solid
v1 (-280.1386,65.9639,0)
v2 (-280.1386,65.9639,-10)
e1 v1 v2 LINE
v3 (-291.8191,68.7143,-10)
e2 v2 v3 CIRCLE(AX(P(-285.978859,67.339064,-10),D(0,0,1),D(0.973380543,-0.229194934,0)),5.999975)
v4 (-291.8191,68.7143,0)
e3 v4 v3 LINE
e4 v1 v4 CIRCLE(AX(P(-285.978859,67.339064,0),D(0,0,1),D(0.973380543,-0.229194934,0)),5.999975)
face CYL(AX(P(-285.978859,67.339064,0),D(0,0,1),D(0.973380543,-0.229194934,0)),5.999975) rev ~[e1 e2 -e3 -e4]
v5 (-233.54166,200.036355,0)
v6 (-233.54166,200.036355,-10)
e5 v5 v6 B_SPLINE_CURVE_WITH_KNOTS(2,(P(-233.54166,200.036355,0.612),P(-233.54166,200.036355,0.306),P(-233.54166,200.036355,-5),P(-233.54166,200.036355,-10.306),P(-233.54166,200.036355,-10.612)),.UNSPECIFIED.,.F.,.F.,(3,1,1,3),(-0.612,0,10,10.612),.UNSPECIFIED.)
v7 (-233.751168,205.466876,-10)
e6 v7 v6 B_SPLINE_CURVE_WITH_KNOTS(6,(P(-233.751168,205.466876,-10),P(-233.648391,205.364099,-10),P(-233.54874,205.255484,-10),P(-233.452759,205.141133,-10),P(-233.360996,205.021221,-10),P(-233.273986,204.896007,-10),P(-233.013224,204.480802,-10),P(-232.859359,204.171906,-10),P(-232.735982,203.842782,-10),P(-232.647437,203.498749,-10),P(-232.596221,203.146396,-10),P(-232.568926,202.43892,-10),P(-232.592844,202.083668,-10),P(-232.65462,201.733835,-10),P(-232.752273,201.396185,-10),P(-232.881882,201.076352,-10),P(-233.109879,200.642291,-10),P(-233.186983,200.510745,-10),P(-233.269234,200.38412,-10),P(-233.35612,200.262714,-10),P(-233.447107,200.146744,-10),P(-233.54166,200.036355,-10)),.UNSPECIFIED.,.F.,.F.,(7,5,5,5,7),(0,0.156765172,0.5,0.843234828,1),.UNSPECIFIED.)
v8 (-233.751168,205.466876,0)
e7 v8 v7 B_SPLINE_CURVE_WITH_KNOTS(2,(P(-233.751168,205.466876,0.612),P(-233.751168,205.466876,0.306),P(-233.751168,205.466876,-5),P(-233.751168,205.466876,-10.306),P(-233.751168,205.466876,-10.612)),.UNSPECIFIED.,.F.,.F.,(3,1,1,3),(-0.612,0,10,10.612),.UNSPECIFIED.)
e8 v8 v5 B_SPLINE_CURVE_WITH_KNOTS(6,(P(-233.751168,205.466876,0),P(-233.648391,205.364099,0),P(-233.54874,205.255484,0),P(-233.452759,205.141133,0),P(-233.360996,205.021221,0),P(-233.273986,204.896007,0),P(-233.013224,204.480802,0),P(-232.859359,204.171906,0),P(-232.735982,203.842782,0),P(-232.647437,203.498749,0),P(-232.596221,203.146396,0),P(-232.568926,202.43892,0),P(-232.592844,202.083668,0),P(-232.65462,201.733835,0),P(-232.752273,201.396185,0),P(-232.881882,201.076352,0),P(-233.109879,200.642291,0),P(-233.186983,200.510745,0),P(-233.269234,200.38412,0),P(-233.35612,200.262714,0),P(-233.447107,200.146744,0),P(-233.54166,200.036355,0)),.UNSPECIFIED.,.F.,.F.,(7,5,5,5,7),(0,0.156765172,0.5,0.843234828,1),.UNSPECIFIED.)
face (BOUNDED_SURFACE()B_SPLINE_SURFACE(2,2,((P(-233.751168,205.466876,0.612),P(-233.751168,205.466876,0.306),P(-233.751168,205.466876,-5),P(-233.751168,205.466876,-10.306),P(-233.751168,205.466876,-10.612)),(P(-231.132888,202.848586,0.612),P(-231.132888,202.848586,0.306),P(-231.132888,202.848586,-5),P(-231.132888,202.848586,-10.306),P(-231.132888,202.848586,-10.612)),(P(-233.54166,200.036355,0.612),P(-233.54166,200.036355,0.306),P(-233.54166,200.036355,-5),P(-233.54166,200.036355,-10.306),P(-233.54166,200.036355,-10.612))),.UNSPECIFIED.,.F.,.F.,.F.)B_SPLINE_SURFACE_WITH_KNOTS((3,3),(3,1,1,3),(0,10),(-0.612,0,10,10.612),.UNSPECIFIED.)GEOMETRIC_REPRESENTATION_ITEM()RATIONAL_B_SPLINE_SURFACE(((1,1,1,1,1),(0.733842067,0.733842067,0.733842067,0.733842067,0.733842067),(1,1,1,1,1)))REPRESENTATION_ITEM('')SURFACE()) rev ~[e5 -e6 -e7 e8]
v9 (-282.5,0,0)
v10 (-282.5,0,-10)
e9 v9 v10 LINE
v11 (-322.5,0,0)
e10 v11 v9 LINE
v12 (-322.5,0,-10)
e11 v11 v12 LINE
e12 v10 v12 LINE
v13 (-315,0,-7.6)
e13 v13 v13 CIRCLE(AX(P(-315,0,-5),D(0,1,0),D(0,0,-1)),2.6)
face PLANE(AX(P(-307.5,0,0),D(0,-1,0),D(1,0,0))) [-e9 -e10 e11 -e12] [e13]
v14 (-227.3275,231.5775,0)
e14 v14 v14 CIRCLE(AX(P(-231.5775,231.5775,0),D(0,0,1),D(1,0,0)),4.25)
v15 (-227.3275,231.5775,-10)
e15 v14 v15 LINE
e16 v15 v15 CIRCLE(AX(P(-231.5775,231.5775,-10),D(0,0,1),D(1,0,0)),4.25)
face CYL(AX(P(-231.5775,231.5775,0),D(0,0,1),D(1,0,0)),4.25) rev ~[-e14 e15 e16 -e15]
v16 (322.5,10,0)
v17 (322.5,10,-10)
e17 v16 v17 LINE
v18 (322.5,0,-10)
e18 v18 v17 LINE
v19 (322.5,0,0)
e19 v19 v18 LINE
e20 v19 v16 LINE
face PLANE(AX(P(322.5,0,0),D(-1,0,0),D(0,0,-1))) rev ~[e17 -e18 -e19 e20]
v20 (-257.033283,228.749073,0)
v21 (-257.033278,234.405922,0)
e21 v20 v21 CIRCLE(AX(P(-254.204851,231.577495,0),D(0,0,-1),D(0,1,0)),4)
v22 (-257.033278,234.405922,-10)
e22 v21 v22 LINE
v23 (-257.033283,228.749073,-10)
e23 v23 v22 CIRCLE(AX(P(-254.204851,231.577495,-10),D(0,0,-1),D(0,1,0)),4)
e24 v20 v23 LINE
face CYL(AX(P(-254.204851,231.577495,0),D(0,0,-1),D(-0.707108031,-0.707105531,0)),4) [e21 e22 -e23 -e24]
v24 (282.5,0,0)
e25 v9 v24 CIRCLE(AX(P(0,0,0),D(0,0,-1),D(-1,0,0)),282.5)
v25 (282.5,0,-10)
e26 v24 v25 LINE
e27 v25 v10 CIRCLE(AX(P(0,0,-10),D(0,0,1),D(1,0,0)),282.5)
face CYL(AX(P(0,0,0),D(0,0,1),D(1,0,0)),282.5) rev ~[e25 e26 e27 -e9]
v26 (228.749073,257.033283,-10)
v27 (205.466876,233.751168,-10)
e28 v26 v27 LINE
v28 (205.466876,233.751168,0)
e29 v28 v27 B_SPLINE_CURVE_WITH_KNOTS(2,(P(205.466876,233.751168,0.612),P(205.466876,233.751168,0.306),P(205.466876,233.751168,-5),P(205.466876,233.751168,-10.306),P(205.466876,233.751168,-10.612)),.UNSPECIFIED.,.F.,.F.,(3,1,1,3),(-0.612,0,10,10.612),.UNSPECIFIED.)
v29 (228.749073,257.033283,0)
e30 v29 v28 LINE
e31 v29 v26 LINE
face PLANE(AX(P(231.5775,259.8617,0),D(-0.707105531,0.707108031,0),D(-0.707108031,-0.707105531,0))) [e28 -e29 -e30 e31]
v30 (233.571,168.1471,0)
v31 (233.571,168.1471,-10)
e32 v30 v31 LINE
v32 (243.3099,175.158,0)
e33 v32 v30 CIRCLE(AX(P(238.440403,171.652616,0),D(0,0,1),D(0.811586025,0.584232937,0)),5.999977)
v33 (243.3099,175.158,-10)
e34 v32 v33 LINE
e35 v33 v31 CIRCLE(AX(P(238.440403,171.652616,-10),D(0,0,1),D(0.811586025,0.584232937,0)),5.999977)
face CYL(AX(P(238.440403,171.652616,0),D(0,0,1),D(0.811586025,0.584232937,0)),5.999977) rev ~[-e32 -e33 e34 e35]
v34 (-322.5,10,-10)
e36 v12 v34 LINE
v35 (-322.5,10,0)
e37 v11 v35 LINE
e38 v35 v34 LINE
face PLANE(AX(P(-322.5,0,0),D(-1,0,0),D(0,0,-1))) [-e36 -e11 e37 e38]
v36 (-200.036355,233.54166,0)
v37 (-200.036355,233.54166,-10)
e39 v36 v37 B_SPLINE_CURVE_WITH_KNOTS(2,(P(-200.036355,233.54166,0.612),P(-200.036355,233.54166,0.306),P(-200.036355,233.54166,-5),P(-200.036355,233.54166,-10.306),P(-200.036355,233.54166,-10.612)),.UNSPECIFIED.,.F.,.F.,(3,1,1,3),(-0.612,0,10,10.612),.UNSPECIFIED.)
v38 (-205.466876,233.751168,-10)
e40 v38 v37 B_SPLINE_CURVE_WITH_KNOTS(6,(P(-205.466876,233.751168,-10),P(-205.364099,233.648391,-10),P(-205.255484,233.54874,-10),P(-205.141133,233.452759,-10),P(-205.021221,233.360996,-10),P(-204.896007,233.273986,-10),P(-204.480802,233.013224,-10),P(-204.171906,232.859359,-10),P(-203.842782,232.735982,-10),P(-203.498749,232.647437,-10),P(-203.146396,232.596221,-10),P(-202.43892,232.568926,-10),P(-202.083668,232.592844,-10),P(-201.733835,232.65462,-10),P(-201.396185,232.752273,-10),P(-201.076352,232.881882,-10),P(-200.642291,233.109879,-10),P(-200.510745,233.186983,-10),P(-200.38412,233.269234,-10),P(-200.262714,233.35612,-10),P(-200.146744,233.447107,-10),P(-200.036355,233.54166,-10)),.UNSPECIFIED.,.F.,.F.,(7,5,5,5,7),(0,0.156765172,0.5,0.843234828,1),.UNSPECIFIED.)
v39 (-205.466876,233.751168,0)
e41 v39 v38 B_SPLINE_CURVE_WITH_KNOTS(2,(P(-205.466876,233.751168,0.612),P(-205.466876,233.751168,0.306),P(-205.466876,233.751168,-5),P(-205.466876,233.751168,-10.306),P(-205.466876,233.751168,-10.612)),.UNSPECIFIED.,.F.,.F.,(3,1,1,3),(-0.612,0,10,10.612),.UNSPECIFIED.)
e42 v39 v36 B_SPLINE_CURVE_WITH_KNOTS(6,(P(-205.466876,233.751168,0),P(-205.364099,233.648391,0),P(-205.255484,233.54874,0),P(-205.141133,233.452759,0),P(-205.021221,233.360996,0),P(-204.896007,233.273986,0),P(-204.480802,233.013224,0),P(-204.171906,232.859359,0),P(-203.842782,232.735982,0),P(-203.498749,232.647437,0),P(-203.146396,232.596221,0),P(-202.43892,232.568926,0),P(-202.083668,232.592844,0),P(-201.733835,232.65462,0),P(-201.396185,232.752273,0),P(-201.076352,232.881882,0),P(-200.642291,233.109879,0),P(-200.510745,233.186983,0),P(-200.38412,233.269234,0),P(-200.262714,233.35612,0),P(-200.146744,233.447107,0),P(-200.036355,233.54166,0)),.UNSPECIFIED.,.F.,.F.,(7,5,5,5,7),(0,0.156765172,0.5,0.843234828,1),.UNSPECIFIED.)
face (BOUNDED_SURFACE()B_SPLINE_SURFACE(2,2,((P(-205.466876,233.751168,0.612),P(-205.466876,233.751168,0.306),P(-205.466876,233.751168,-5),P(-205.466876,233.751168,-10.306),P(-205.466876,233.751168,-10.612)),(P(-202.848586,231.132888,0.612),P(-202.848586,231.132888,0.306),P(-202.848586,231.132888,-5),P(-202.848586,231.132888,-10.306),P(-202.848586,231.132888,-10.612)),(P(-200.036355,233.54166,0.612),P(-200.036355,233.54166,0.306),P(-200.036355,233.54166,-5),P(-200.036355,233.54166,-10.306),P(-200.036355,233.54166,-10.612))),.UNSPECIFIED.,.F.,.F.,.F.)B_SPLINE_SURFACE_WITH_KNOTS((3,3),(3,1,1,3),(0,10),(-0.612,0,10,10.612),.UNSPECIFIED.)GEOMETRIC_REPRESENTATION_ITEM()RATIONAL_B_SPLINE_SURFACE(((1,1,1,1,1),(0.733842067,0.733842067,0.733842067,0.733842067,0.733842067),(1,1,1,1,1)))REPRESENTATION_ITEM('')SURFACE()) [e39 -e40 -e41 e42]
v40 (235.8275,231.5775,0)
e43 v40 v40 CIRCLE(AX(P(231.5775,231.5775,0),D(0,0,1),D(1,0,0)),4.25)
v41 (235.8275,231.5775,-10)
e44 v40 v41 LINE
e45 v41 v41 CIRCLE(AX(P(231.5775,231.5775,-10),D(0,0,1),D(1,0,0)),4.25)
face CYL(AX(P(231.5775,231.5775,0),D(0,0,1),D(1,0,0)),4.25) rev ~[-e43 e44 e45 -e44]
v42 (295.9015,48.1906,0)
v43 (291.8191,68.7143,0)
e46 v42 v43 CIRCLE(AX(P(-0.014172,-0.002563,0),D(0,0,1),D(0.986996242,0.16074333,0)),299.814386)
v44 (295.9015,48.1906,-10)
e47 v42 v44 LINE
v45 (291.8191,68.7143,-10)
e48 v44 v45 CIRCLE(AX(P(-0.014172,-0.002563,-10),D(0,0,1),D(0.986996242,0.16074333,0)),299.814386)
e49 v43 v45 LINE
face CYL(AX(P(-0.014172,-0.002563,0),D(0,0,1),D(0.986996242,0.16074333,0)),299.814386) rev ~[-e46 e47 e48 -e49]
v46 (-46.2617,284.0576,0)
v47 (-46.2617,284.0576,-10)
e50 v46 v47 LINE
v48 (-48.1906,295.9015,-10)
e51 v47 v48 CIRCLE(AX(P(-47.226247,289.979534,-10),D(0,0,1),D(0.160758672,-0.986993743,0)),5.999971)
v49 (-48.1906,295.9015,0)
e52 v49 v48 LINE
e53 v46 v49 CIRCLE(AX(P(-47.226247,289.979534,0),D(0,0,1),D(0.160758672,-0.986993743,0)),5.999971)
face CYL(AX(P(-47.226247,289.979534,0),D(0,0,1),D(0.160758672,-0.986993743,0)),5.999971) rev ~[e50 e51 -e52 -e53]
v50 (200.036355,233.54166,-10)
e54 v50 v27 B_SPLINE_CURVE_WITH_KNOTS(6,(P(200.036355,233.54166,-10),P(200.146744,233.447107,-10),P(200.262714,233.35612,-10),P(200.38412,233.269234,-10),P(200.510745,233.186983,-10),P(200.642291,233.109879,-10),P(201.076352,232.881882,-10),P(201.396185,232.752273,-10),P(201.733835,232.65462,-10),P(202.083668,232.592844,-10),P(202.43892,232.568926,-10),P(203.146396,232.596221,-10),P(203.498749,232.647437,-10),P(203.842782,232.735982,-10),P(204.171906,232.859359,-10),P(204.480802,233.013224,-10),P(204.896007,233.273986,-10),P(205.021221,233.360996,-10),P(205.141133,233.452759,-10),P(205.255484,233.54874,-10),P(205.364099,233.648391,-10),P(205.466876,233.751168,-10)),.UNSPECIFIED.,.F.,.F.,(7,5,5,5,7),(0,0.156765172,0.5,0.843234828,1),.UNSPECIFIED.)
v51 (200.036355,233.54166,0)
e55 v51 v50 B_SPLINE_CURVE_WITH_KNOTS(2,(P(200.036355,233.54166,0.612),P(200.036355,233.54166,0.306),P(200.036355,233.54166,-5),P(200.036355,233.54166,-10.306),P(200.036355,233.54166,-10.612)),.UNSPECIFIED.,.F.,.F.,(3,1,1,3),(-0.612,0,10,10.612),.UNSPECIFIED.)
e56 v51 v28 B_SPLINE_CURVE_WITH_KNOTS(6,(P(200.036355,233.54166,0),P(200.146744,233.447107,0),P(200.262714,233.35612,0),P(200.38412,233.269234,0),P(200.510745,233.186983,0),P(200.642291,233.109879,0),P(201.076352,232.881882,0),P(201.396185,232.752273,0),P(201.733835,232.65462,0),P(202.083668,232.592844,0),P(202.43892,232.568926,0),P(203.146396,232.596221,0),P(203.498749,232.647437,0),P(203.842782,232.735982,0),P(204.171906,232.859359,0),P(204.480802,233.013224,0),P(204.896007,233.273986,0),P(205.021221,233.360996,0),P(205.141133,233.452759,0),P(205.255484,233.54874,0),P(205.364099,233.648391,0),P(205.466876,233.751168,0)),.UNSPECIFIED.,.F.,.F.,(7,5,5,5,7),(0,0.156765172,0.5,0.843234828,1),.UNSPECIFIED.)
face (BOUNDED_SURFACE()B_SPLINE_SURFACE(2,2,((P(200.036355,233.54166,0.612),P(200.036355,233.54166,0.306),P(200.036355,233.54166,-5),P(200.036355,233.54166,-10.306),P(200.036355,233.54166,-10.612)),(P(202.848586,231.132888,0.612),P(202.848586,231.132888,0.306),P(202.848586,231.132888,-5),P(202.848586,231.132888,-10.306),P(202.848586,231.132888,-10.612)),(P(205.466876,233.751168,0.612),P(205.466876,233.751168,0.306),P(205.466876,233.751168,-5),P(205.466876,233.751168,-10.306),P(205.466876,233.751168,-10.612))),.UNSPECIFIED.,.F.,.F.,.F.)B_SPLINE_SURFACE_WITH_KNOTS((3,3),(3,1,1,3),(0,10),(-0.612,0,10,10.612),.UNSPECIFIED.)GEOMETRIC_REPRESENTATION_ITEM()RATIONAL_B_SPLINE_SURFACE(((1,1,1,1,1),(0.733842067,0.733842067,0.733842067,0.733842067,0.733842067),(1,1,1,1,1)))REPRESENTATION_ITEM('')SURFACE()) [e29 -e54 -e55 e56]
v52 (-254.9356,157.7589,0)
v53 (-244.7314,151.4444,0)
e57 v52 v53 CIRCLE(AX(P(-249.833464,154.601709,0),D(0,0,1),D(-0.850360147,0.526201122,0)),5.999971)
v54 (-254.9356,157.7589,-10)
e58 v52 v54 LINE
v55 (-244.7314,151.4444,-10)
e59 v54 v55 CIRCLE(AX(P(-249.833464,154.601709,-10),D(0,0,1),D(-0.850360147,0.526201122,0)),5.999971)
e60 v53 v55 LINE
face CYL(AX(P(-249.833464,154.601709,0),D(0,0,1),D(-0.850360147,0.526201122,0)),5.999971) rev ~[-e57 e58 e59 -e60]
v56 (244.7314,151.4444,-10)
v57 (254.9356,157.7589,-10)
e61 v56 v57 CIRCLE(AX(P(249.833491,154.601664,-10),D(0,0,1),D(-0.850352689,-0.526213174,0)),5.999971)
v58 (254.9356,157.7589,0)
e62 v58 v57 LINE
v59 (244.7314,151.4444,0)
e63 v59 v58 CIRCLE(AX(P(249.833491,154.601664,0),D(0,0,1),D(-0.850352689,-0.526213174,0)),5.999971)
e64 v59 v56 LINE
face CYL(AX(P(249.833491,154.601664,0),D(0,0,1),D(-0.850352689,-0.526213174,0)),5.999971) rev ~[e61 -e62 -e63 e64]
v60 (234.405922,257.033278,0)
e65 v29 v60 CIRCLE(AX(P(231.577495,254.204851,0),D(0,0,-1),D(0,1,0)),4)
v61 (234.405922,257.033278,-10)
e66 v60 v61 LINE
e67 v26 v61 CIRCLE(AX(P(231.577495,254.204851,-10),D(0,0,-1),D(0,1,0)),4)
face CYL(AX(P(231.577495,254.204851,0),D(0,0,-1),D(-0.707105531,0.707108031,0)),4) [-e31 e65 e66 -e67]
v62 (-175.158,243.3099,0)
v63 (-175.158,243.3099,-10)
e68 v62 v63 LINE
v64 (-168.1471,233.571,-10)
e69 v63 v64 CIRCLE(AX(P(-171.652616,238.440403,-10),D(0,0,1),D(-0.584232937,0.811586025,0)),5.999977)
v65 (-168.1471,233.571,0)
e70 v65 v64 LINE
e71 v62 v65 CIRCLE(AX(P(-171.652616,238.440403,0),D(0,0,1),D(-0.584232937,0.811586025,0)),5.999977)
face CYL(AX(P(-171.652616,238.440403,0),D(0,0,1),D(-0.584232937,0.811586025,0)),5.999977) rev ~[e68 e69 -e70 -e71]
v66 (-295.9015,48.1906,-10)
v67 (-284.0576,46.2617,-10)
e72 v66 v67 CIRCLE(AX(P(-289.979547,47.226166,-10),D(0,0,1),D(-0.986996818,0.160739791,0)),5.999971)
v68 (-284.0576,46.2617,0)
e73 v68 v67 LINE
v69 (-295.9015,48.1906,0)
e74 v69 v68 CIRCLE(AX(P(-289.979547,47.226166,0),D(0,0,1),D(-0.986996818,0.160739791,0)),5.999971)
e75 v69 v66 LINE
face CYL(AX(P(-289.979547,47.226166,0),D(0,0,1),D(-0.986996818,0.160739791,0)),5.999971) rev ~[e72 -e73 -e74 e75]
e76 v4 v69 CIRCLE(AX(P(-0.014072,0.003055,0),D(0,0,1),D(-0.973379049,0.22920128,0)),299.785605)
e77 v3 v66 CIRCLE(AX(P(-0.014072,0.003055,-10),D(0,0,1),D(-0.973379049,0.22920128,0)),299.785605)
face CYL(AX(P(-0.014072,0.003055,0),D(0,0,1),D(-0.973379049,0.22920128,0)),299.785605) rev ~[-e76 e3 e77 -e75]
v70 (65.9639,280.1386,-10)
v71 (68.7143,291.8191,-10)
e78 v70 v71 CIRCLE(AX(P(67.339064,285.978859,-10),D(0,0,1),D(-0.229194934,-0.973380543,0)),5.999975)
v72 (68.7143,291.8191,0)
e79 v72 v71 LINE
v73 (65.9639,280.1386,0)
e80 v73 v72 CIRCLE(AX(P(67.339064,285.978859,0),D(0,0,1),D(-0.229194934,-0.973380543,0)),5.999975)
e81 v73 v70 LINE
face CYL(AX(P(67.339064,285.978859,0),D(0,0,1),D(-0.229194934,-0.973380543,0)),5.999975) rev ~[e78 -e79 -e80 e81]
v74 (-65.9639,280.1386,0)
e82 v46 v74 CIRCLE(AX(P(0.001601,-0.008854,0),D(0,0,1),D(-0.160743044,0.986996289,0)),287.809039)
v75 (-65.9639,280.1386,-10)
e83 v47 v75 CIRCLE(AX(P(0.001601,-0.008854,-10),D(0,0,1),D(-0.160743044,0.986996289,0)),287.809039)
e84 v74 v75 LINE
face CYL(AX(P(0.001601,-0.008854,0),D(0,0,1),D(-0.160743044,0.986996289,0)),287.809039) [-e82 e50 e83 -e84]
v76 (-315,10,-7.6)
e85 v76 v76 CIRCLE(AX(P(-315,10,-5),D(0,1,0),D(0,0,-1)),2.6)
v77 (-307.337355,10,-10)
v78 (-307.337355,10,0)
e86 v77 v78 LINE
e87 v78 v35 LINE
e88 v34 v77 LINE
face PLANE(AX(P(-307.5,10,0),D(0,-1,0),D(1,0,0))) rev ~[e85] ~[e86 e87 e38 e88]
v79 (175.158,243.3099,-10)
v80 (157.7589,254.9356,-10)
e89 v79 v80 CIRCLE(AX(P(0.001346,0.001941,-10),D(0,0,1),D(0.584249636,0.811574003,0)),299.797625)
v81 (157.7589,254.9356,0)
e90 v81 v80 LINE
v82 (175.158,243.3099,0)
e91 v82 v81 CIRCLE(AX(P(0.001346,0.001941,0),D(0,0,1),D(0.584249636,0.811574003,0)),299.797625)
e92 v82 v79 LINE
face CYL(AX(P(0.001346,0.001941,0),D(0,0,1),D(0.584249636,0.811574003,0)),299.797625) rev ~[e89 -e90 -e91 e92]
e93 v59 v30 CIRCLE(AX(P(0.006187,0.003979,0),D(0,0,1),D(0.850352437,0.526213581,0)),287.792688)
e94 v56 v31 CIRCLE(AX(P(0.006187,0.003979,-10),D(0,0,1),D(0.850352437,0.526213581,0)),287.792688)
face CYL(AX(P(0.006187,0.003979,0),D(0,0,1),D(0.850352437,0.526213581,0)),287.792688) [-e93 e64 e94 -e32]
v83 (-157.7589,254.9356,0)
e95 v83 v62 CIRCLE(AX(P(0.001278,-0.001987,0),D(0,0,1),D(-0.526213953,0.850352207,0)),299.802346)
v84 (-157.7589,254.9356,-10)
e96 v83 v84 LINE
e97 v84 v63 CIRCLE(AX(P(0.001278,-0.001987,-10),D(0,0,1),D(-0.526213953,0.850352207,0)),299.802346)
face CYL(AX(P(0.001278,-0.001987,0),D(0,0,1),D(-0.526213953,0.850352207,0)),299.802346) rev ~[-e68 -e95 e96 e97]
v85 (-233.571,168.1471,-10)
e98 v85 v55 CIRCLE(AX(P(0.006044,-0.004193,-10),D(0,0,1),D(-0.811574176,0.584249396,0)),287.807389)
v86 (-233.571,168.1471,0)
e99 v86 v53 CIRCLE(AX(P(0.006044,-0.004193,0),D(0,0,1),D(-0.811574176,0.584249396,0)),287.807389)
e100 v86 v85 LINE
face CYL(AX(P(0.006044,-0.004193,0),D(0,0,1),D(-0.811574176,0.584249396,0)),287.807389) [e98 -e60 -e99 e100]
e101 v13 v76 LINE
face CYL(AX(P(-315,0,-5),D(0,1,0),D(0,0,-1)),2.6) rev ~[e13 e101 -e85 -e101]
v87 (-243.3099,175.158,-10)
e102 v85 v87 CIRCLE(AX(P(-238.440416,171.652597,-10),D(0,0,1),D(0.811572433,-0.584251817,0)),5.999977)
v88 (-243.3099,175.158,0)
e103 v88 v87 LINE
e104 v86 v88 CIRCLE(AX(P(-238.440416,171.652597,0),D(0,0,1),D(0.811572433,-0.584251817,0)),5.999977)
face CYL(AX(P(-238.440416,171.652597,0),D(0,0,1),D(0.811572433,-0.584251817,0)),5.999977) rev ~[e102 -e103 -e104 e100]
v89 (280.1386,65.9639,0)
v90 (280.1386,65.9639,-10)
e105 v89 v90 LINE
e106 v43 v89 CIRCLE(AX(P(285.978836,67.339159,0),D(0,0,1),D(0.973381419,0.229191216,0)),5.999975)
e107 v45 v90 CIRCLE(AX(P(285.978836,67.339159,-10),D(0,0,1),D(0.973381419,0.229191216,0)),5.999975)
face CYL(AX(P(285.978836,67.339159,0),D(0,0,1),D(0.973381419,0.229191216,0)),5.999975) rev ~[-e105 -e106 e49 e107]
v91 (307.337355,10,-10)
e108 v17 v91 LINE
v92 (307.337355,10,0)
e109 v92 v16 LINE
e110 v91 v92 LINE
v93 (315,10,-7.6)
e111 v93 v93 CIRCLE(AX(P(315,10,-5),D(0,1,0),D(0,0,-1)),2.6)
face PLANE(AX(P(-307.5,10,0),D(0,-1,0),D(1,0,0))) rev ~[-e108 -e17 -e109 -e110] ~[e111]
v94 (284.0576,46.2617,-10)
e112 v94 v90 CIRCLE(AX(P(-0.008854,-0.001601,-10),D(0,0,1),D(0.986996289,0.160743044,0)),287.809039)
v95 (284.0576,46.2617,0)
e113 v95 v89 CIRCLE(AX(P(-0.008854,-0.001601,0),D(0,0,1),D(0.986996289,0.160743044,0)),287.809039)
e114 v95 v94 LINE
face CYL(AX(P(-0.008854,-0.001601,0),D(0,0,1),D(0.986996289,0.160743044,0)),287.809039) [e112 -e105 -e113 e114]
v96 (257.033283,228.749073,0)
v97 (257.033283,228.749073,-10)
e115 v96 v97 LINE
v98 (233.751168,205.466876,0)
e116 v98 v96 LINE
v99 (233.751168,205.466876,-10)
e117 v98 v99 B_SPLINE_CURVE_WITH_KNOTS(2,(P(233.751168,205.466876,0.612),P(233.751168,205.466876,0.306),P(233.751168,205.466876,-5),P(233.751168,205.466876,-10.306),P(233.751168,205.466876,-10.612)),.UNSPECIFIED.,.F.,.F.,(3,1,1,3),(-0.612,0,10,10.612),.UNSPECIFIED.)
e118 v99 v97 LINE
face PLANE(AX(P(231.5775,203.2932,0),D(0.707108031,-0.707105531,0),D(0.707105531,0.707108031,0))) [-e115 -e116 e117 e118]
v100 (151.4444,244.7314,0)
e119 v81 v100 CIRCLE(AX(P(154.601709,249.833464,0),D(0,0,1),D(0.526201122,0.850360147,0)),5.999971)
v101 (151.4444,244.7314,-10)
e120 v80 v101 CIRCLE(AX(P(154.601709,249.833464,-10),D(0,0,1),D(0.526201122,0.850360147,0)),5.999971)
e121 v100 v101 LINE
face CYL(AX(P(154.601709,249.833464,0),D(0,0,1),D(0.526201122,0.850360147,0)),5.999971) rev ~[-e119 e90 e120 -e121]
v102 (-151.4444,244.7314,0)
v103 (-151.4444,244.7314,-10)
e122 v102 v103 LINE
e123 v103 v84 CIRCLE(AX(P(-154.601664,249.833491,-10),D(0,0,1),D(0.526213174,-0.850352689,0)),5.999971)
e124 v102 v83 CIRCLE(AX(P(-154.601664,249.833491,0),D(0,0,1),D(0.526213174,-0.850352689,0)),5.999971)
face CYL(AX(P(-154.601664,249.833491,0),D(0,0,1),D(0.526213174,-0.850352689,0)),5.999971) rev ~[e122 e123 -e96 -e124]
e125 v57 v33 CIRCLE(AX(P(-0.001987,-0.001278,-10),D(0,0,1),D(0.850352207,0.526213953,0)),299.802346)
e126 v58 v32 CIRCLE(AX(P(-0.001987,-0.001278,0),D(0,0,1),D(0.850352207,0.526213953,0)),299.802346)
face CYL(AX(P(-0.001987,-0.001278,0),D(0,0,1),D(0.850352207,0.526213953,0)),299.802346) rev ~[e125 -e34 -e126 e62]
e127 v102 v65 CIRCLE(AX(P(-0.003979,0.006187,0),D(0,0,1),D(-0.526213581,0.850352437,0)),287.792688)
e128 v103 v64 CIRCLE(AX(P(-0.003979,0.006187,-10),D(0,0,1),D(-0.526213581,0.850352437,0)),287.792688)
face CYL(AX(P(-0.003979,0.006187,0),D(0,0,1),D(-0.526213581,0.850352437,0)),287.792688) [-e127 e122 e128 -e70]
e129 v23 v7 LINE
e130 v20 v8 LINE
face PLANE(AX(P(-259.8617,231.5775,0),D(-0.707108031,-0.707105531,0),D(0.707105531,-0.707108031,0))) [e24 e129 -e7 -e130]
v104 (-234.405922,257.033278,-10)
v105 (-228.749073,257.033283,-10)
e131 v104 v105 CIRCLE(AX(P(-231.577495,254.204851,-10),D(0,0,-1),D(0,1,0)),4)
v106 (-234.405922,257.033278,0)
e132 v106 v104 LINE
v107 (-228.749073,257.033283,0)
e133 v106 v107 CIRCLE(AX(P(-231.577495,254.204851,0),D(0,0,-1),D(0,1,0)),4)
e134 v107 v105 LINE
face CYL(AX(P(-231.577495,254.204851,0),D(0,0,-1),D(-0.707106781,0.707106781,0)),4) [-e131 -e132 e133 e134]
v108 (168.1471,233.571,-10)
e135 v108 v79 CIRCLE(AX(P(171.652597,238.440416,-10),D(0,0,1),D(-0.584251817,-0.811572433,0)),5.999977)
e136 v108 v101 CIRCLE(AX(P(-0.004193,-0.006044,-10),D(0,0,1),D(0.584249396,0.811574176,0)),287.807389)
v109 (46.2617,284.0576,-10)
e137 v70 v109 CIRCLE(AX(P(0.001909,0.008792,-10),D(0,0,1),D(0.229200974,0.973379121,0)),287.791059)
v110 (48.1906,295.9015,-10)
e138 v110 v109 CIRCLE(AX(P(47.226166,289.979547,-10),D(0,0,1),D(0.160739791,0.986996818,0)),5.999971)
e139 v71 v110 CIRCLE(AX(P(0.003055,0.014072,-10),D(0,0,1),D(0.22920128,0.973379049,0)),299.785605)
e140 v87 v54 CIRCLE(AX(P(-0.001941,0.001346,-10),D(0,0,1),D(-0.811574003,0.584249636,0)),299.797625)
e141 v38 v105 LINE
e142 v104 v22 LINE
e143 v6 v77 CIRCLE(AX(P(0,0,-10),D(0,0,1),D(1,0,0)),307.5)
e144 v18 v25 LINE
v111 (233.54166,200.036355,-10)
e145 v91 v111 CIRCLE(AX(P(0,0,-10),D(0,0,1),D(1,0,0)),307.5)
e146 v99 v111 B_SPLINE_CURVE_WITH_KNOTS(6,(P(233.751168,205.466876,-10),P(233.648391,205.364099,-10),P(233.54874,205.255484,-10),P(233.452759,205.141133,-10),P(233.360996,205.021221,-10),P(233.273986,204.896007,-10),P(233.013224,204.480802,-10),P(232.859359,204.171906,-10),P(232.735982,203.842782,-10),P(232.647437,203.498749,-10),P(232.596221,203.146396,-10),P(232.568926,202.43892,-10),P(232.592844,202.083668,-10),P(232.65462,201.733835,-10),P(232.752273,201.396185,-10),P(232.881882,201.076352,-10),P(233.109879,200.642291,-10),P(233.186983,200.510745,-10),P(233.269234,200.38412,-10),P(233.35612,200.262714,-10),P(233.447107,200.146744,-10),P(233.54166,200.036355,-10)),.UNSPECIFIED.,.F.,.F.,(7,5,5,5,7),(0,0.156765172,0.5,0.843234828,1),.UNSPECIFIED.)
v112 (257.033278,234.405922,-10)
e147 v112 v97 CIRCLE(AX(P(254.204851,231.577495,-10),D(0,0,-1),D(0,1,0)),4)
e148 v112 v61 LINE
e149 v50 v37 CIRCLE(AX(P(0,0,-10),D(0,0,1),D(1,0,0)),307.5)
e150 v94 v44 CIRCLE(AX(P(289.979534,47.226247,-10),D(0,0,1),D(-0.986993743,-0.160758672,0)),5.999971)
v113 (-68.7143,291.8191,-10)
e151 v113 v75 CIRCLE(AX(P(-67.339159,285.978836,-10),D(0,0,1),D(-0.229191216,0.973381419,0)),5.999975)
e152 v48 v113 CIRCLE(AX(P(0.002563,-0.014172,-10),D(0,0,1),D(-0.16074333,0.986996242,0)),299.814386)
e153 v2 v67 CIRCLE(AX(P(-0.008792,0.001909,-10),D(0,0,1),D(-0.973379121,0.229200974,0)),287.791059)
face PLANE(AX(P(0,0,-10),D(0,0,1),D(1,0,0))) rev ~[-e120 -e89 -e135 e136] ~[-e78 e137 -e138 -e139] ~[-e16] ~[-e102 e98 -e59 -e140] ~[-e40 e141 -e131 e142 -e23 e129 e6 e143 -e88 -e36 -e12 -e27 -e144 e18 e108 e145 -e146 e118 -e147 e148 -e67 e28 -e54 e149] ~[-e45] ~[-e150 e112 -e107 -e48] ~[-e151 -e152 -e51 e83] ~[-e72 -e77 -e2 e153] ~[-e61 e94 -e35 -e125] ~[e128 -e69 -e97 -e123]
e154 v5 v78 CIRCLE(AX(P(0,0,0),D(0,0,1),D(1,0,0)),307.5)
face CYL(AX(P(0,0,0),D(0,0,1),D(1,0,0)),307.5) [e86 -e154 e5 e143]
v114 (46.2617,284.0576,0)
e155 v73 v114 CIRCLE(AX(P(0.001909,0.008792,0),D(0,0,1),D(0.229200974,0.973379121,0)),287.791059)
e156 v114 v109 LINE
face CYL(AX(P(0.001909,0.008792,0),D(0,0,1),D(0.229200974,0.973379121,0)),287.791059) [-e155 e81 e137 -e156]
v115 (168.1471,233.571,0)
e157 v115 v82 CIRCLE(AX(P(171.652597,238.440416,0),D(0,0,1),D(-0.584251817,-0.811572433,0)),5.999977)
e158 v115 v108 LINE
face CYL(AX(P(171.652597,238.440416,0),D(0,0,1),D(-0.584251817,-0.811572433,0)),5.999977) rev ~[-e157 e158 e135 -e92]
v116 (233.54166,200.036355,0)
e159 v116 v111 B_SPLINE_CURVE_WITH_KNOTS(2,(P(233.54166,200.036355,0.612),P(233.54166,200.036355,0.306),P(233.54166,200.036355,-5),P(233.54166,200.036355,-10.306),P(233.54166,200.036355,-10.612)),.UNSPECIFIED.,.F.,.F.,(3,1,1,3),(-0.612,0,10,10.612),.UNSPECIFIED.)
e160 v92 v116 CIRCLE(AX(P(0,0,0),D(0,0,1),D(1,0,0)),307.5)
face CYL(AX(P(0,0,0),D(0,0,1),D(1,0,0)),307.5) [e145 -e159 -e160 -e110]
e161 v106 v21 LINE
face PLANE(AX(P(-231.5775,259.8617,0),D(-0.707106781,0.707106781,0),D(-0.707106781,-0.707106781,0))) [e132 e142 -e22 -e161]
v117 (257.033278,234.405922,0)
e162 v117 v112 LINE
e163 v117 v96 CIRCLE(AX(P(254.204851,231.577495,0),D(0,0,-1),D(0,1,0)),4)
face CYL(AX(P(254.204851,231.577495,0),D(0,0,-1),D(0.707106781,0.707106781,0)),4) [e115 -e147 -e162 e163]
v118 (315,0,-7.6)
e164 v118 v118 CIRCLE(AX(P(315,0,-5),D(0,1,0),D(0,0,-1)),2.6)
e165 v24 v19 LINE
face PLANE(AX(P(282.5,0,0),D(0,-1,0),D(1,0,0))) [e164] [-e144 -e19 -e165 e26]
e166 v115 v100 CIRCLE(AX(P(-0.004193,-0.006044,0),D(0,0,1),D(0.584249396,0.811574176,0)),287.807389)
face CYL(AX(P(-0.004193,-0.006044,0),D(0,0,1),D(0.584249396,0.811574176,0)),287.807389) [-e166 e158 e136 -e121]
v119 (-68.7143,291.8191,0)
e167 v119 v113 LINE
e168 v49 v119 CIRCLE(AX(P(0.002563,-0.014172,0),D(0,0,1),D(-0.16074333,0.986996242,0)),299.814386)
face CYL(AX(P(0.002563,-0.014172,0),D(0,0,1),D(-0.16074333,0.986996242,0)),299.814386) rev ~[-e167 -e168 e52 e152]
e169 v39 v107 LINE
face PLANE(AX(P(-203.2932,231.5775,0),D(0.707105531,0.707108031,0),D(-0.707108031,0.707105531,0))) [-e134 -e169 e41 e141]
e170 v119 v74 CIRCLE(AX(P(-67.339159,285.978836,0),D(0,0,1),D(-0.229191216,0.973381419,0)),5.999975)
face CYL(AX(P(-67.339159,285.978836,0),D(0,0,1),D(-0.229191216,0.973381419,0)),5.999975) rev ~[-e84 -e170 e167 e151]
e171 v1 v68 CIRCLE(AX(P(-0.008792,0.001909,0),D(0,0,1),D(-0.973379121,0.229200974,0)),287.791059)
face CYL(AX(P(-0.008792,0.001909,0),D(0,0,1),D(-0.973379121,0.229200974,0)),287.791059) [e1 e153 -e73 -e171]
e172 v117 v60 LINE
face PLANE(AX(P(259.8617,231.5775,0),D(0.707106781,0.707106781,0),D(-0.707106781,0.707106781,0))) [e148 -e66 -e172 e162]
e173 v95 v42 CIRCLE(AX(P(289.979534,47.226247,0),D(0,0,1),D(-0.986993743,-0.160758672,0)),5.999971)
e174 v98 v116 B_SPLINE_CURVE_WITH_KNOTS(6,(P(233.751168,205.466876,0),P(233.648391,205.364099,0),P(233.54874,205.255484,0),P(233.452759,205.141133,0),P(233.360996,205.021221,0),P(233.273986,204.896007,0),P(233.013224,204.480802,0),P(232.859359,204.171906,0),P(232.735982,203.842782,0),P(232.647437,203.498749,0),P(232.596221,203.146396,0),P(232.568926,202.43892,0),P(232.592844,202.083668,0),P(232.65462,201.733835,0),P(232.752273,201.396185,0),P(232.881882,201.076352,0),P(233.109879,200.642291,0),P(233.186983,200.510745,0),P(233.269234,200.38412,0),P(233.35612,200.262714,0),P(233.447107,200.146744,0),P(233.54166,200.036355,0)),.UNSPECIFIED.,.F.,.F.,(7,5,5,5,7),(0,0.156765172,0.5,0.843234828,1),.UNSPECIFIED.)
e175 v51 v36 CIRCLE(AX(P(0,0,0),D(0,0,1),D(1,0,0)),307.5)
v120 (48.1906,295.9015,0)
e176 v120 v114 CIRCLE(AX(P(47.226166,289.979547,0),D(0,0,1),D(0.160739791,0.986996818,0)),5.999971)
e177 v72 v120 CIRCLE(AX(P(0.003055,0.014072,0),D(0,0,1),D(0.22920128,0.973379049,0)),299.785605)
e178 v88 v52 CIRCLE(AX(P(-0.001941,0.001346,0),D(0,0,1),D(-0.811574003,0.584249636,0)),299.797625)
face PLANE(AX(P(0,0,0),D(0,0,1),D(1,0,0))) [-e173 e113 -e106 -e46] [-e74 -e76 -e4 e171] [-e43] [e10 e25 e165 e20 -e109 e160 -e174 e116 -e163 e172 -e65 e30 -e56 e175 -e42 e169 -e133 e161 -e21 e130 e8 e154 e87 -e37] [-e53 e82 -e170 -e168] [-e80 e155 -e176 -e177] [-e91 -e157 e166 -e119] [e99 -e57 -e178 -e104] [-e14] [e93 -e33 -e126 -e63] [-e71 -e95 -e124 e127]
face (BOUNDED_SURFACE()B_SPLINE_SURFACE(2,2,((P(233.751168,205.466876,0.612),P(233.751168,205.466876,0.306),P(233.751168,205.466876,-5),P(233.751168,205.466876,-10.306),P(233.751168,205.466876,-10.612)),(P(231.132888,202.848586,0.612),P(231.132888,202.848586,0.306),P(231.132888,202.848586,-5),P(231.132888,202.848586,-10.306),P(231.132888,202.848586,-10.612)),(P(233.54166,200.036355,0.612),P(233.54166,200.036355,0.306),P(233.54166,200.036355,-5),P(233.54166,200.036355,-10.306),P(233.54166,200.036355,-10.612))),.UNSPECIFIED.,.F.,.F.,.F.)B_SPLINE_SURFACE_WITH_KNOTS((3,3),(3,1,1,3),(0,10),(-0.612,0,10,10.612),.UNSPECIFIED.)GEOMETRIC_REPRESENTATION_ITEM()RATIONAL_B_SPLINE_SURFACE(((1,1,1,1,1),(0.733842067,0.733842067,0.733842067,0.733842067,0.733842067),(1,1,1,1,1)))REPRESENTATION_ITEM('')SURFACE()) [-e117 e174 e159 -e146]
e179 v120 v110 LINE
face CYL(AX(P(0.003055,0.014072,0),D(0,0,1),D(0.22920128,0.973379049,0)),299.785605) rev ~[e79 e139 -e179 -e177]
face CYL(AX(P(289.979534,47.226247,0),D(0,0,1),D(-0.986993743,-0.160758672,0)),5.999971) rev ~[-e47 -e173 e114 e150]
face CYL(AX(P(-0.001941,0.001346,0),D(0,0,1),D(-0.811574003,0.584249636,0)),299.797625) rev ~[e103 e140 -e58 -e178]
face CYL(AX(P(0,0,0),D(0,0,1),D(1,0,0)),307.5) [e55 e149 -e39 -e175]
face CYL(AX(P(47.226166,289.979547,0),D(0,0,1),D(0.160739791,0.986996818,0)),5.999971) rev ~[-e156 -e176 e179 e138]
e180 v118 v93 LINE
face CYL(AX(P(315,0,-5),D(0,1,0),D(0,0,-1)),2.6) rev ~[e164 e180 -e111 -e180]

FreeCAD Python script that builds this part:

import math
import FreeCAD as App
import Part
import Sketcher
from FreeCAD import Vector


def edges_at(feature, points):
    """Names of the edges that pass closest to the given points."""
    edges = feature.Shape.Edges
    near = lambda p: min(range(len(edges)), key=lambda i: edges[i].distToShape(Part.Vertex(*p))[0])
    return sorted({f"Edge{near(p) + 1}" for p in points})

doc = App.newDocument("Part")
params = doc.addObject("Spreadsheet::Sheet", "Params")
for row, (alias, value) in enumerate([
    ("sketch1_radius", "6 mm"),
    ("sketch1_diameter", "8.5 mm"),
    ("sketch1_radius2", "307.5 mm"),
    ("sketch1_radius3", "282.5 mm"),
    ("sketch1_length", "40 mm"),
    ("pad1_length", "10 mm"),
    ("sketch2_width", "40 mm"),
    ("sketch2_height", "10 mm"),
    ("pad2_length", "10 mm"),
    ("fillet_radius", "4 mm"),
    ("sketch3_diameter", "5.2 mm"),
    ("hole_diameter", "5.2 mm"),
], start=1):
    params.set(f"A{row}", alias)
    params.set(f"B{row}", "=" + value)
    params.setAlias(f"B{row}", alias)

body = doc.addObject("PartDesign::Body", "Body")

# Sketch on XY plane
sketch1 = body.newObject("Sketcher::SketchObject", "Sketch")
sketch1.AttachmentSupport = (doc.getObject("XY_Plane"), [""])
sketch1.MapMode = "FlatFace"
sketch1.addGeometry([
    Part.LineSegment(Vector(-259.8617, 231.5775, 0), Vector(-231.5775, 203.2932, 0)),  # 0
    Part.LineSegment(Vector(-231.5775, 203.2932, 0), Vector(-231.11709, 202.83279, 0)),  # 1
    Part.ArcOfCircle(Part.Circle(Vector(0, 0, 0), Vector(0, 0, 1), 307.5), math.radians(138.729191), math.radians(180)),  # 2
    Part.LineSegment(Vector(-307.5, 0, 0), Vector(-282.5, 0, 0)),  # 3
    Part.ArcOfCircle(Part.Circle(Vector(0, 0, 0), Vector(0, 0, 1), 282.5), math.radians(0), math.radians(180)),  # 4
    Part.LineSegment(Vector(282.5, 0, 0), Vector(307.5, 0, 0)),  # 5
    Part.ArcOfCircle(Part.Circle(Vector(0, 0, 0), Vector(0, 0, 1), 307.5), math.radians(0), math.radians(41.270809)),  # 6
    Part.LineSegment(Vector(231.11709, 202.83279, 0), Vector(231.5775, 203.2932, 0)),  # 7
    Part.LineSegment(Vector(231.5775, 203.2932, 0), Vector(259.8617, 231.5775, 0)),  # 8
    Part.LineSegment(Vector(259.8617, 231.5775, 0), Vector(231.5775, 259.8617, 0)),  # 9
    Part.LineSegment(Vector(231.5775, 259.8617, 0), Vector(203.2932, 231.5775, 0)),  # 10
    Part.LineSegment(Vector(203.2932, 231.5775, 0), Vector(202.83279, 231.11709, 0)),  # 11
    Part.ArcOfCircle(Part.Circle(Vector(0, 0, 0), Vector(0, 0, 1), 307.5), math.radians(48.729191), math.radians(131.270809)),  # 12
    Part.LineSegment(Vector(-202.83279, 231.11709, 0), Vector(-203.2932, 231.5775, 0)),  # 13
    Part.LineSegment(Vector(-203.2932, 231.5775, 0), Vector(-231.5775, 259.8617, 0)),  # 14
    Part.LineSegment(Vector(-231.5775, 259.8617, 0), Vector(-259.8617, 231.5775, 0)),  # 15
    Part.Circle(Vector(-231.5775, 231.5775, 0), Vector(0, 0, 1), 4.25),  # 16
    Part.ArcOfCircle(Part.Circle(Vector(-238.4404, 171.6526, 0), Vector(0, 0, 1), 5.999966), math.radians(-35.75026), math.radians(144.251072)),  # 17
    Part.ArcOfCircle(Part.Circle(Vector(0.006044, -0.004193, 0), Vector(0, 0, 1), 287.807389), math.radians(144.250019), math.radians(148.249921)),  # 18
    Part.ArcOfCircle(Part.Circle(Vector(-249.8335, 154.6017, 0), Vector(0, 0, 1), 5.999945), math.radians(148.250611), math.radians(328.249799)),  # 19
    Part.ArcOfCircle(Part.Circle(Vector(-0.001941, 0.001346, 0), Vector(0, 0, 1), 299.797625), math.radians(144.250002), math.radians(148.25003)),  # 20
    Part.ArcOfCircle(Part.Circle(Vector(-0.014072, 0.003055, 0), Vector(0, 0, 1), 299.785605), math.radians(166.749948), math.radians(170.750148)),  # 21
    Part.ArcOfCircle(Part.Circle(Vector(-285.9788, 67.3391, 0), Vector(0, 0, 1), 5.999926), math.radians(-13.250144), math.radians(166.750075)),  # 22
    Part.ArcOfCircle(Part.Circle(Vector(-0.008792, 0.001909, 0), Vector(0, 0, 1), 287.791059), math.radians(166.749966), math.radians(170.750097)),  # 23
    Part.ArcOfCircle(Part.Circle(Vector(-289.9795, 47.2262, 0), Vector(0, 0, 1), 6.000013), math.radians(170.750556), math.radians(350.74946)),  # 24
    Part.ArcOfCircle(Part.Circle(Vector(171.6526, 238.4404, 0), Vector(0, 0, 1), 5.999966), math.radians(-125.75026), math.radians(54.251072)),  # 25
    Part.ArcOfCircle(Part.Circle(Vector(-0.004193, -0.006044, 0), Vector(0, 0, 1), 287.807389), math.radians(54.250019), math.radians(58.249921)),  # 26
    Part.ArcOfCircle(Part.Circle(Vector(154.6017, 249.8335, 0), Vector(0, 0, 1), 5.999945), math.radians(58.250611), math.radians(238.249799)),  # 27
    Part.ArcOfCircle(Part.Circle(Vector(0.001346, 0.001941, 0), Vector(0, 0, 1), 299.797625), math.radians(54.250002), math.radians(58.25003)),  # 28
    Part.ArcOfCircle(Part.Circle(Vector(0.001278, -0.001987, 0), Vector(0, 0, 1), 299.802346), math.radians(121.750002), math.radians(125.749966)),  # 29
    Part.ArcOfCircle(Part.Circle(Vector(-154.6017, 249.8335, 0), Vector(0, 0, 1), 5.999997), math.radians(-58.249799), math.radians(121.749389)),  # 30
    Part.ArcOfCircle(Part.Circle(Vector(-0.003979, 0.006187, 0), Vector(0, 0, 1), 287.792688), math.radians(121.749977), math.radians(125.750083)),  # 31
    Part.ArcOfCircle(Part.Circle(Vector(-171.6526, 238.4404, 0), Vector(0, 0, 1), 5.999988), math.radians(125.748928), math.radians(305.75026)),  # 32
    Part.ArcOfCircle(Part.Circle(Vector(0.002563, -0.014172, 0), Vector(0, 0, 1), 299.814386), math.radians(99.250044), math.radians(103.24986)),  # 33
    Part.ArcOfCircle(Part.Circle(Vector(-47.2262, 289.9795, 0), Vector(0, 0, 1), 5.99993), math.radians(-80.74946), math.radians(99.249444)),  # 34
    Part.ArcOfCircle(Part.Circle(Vector(0.001601, -0.008854, 0), Vector(0, 0, 1), 287.809039), math.radians(99.250028), math.radians(103.249909)),  # 35
    Part.ArcOfCircle(Part.Circle(Vector(-67.3391, 285.9788, 0), Vector(0, 0, 1), 6.000023), math.radians(103.249925), math.radians(283.250144)),  # 36
    Part.ArcOfCircle(Part.Circle(Vector(0.003055, 0.014072, 0), Vector(0, 0, 1), 299.785605), math.radians(76.749948), math.radians(80.750148)),  # 37
    Part.ArcOfCircle(Part.Circle(Vector(67.3391, 285.9788, 0), Vector(0, 0, 1), 5.999926), math.radians(-103.250144), math.radians(76.750075)),  # 38
    Part.ArcOfCircle(Part.Circle(Vector(0.001909, 0.008792, 0), Vector(0, 0, 1), 287.791059), math.radians(76.749966), math.radians(80.750097)),  # 39
    Part.ArcOfCircle(Part.Circle(Vector(47.2262, 289.9795, 0), Vector(0, 0, 1), 6.000013), math.radians(80.750556), math.radians(260.74946)),  # 40
    Part.ArcOfCircle(Part.Circle(Vector(249.8335, 154.6017, 0), Vector(0, 0, 1), 5.999997), math.radians(-148.249799), math.radians(31.749389)),  # 41
    Part.ArcOfCircle(Part.Circle(Vector(0.006187, 0.003979, 0), Vector(0, 0, 1), 287.792688), math.radians(31.749977), math.radians(35.750083)),  # 42
    Part.ArcOfCircle(Part.Circle(Vector(238.4404, 171.6526, 0), Vector(0, 0, 1), 5.999988), math.radians(35.748928), math.radians(215.75026)),  # 43
    Part.ArcOfCircle(Part.Circle(Vector(-0.001987, -0.001278, 0), Vector(0, 0, 1), 299.802346), math.radians(31.750002), math.radians(35.749966)),  # 44
    Part.ArcOfCircle(Part.Circle(Vector(-0.014172, -0.002563, 0), Vector(0, 0, 1), 299.814386), math.radians(9.250044), math.radians(13.24986)),  # 45
    Part.ArcOfCircle(Part.Circle(Vector(289.9795, 47.2262, 0), Vector(0, 0, 1), 5.99993), math.radians(-170.74946), math.radians(9.249444)),  # 46
    Part.ArcOfCircle(Part.Circle(Vector(-0.008854, -0.001601, 0), Vector(0, 0, 1), 287.809039), math.radians(9.250028), math.radians(13.249909)),  # 47
    Part.ArcOfCircle(Part.Circle(Vector(285.9788, 67.3391, 0), Vector(0, 0, 1), 6.000023), math.radians(13.249925), math.radians(193.250144)),  # 48
    Part.Circle(Vector(231.5775, 231.5775, 0), Vector(0, 0, 1), 4.25),  # 49
], False)
sketch1.addConstraint([
    Sketcher.Constraint("Coincident", 0, 2, 1, 1),
    Sketcher.Constraint("Coincident", 1, 2, 2, 1),
    Sketcher.Constraint("Coincident", 2, 2, 3, 1),
    Sketcher.Constraint("Coincident", 3, 2, 4, 2),
    Sketcher.Constraint("Coincident", 4, 1, 5, 1),
    Sketcher.Constraint("Coincident", 5, 2, 6, 1),
    Sketcher.Constraint("Coincident", 6, 2, 7, 1),
    Sketcher.Constraint("Coincident", 7, 2, 8, 1),
    Sketcher.Constraint("Coincident", 8, 2, 9, 1),
    Sketcher.Constraint("Coincident", 9, 2, 10, 1),
    Sketcher.Constraint("Coincident", 10, 2, 11, 1),
    Sketcher.Constraint("Coincident", 11, 2, 12, 1),
    Sketcher.Constraint("Coincident", 12, 2, 13, 1),
    Sketcher.Constraint("Coincident", 13, 2, 14, 1),
    Sketcher.Constraint("Coincident", 14, 2, 15, 1),
    Sketcher.Constraint("Coincident", 15, 2, 0, 1),
    Sketcher.Constraint("Tangent", 17, 1, 18, 1),
    Sketcher.Constraint("Tangent", 18, 2, 19, 2),
    Sketcher.Constraint("Tangent", 19, 1, 20, 2),
    Sketcher.Constraint("Tangent", 20, 1, 17, 2),
    Sketcher.Constraint("Tangent", 21, 1, 22, 2),
    Sketcher.Constraint("Tangent", 22, 1, 23, 1),
    Sketcher.Constraint("Tangent", 23, 2, 24, 2),
    Sketcher.Constraint("Tangent", 24, 1, 21, 2),
    Sketcher.Constraint("Tangent", 25, 1, 26, 1),
    Sketcher.Constraint("Tangent", 26, 2, 27, 2),
    Sketcher.Constraint("Tangent", 27, 1, 28, 2),
    Sketcher.Constraint("Tangent", 28, 1, 25, 2),
    Sketcher.Constraint("Tangent", 29, 1, 30, 2),
    Sketcher.Constraint("Tangent", 30, 1, 31, 1),
    Sketcher.Constraint("Tangent", 31, 2, 32, 2),
    Sketcher.Constraint("Tangent", 32, 1, 29, 2),
    Sketcher.Constraint("Tangent", 33, 1, 34, 2),
    Sketcher.Constraint("Tangent", 34, 1, 35, 1),
    Sketcher.Constraint("Tangent", 35, 2, 36, 2),
    Sketcher.Constraint("Tangent", 36, 1, 33, 2),
    Sketcher.Constraint("Tangent", 37, 1, 38, 2),
    Sketcher.Constraint("Tangent", 38, 1, 39, 1),
    Sketcher.Constraint("Tangent", 39, 2, 40, 2),
    Sketcher.Constraint("Tangent", 40, 1, 37, 2),
    Sketcher.Constraint("Tangent", 41, 1, 42, 1),
    Sketcher.Constraint("Tangent", 42, 2, 43, 2),
    Sketcher.Constraint("Tangent", 43, 1, 44, 2),
    Sketcher.Constraint("Tangent", 44, 1, 41, 2),
    Sketcher.Constraint("Tangent", 45, 1, 46, 2),
    Sketcher.Constraint("Tangent", 46, 1, 47, 1),
    Sketcher.Constraint("Tangent", 47, 2, 48, 2),
    Sketcher.Constraint("Tangent", 48, 1, 45, 2),
    Sketcher.Constraint("Horizontal", 3),
    Sketcher.Constraint("Horizontal", 5),
    Sketcher.Constraint("Coincident", 2, 3, -1, 1),
    Sketcher.Constraint("Coincident", 4, 3, -1, 1),
    Sketcher.Constraint("Coincident", 6, 3, -1, 1),
    Sketcher.Constraint("Coincident", 12, 3, -1, 1),
    Sketcher.Constraint("Equal", 2, 6),
    Sketcher.Constraint("Equal", 6, 12),
    Sketcher.Constraint("Equal", 17, 19),
    Sketcher.Constraint("Equal", 19, 22),
    Sketcher.Constraint("Equal", 22, 24),
    Sketcher.Constraint("Equal", 24, 25),
    Sketcher.Constraint("Equal", 18, 26),
    Sketcher.Constraint("Equal", 25, 27),
    Sketcher.Constraint("Equal", 20, 28),
    Sketcher.Constraint("Equal", 27, 30),
    Sketcher.Constraint("Equal", 30, 32),
    Sketcher.Constraint("Equal", 32, 34),
    Sketcher.Constraint("Equal", 34, 36),
    Sketcher.Constraint("Equal", 21, 37),
    Sketcher.Constraint("Equal", 36, 38),
    Sketcher.Constraint("Equal", 23, 39),
    Sketcher.Constraint("Equal", 38, 40),
    Sketcher.Constraint("Equal", 40, 41),
    Sketcher.Constraint("Equal", 31, 42),
    Sketcher.Constraint("Equal", 41, 43),
    Sketcher.Constraint("Equal", 29, 44),
    Sketcher.Constraint("Equal", 33, 45),
    Sketcher.Constraint("Equal", 43, 46),
    Sketcher.Constraint("Equal", 35, 47),
    Sketcher.Constraint("Equal", 46, 48),
    Sketcher.Constraint("Equal", 16, 49),
    Sketcher.Constraint("Symmetric", 27, 3, 30, 3, -2),
    Sketcher.Constraint("Symmetric", 25, 3, 32, 3, -2),
    Sketcher.Constraint("Symmetric", 36, 3, 38, 3, -2),
    Sketcher.Constraint("Symmetric", 34, 3, 40, 3, -2),
    Sketcher.Constraint("Symmetric", 19, 3, 41, 3, -2),
    Sketcher.Constraint("Symmetric", 17, 3, 43, 3, -2),
    Sketcher.Constraint("Symmetric", 24, 3, 46, 3, -2),
    Sketcher.Constraint("Symmetric", 22, 3, 48, 3, -2),
    Sketcher.Constraint("Symmetric", 16, 3, 49, 3, -2),
    Sketcher.Constraint("Symmetric", 0, 2, 7, 2, -2),
    Sketcher.Constraint("Symmetric", 10, 2, 13, 2, -2),
    Sketcher.Constraint("Symmetric", 9, 2, 14, 2, -2),
    Sketcher.Constraint("Symmetric", 8, 2, 15, 2, -2),
    Sketcher.Constraint("Symmetric", 28, 3, 29, 3, -1),
    Sketcher.Constraint("Symmetric", 35, 3, 39, 3, -1),
    Sketcher.Constraint("Symmetric", 18, 3, 42, 3, -1),
    Sketcher.Constraint("Symmetric", 23, 3, 47, 3, -1),
    Sketcher.Constraint("PointOnObject", 2, 2, -1),
    Sketcher.Constraint("PointOnObject", 4, 1, -1),
    Sketcher.Constraint("Parallel", 0, 1),
    Sketcher.Constraint("Perpendicular", 1, 7),
    Sketcher.Constraint("Parallel", 7, 8),
    Sketcher.Constraint("Perpendicular", 8, 9),
    Sketcher.Constraint("Perpendicular", 9, 10),
    Sketcher.Constraint("Parallel", 10, 11),
    Sketcher.Constraint("Perpendicular", 11, 13),
    Sketcher.Constraint("Horizontal", 23, 3, 28, 3),
    Sketcher.Constraint("Horizontal", 49, 3, 8, 2),
    Sketcher.Constraint("Horizontal", 8, 2, 10, 2),
    Sketcher.Constraint("Vertical", 20, 3, 44, 3),
    Sketcher.Constraint("Vertical", 21, 3, 45, 3),
    Sketcher.Constraint("Vertical", 16, 3, 0, 2),
    Sketcher.Constraint("Vertical", 7, 2, 9, 2),
    Sketcher.Constraint("Equal", 7, 11),
    Sketcher.Constraint("Radius", 17, 6.0),
    Sketcher.Constraint("Diameter", 16, 8.5),
    Sketcher.Constraint("Radius", 2, 307.5),
    Sketcher.Constraint("Radius", 4, 282.5),
    Sketcher.Constraint("Distance", 0, 40.0),
    Sketcher.Constraint("Radius", 23, 287.791),
    Sketcher.Constraint("Radius", 35, 287.809),
    Sketcher.Constraint("DistanceX", 16, 3, -1, 1, 231.5775),
    Sketcher.Constraint("Radius", 18, 287.8074),
    Sketcher.Constraint("Radius", 20, 299.7976),
    Sketcher.Constraint("Radius", 21, 299.7856),
    Sketcher.Constraint("DistanceX", 20, 1, -1, 1, 243.31),
    Sketcher.Constraint("DistanceY", -1, 1, 28, 1, 243.31),
    Sketcher.Constraint("DistanceY", -1, 1, 22, 3, 67.339),
    Sketcher.Constraint("DistanceX", 36, 3, -1, 1, 67.339),
    Sketcher.Constraint("DistanceY", -1, 1, 19, 1, 157.759),
    Sketcher.Constraint("DistanceX", -1, 1, 27, 1, 157.759),
    Sketcher.Constraint("DistanceX", 24, 3, -1, 1, 289.9795),
    Sketcher.Constraint("DistanceX", 34, 3, -1, 1, 47.2262),
])
sketch1.setExpression("Constraints[114]", "Params.sketch1_radius")
sketch1.setExpression("Constraints[115]", "Params.sketch1_diameter")
sketch1.setExpression("Constraints[116]", "Params.sketch1_radius2")
sketch1.setExpression("Constraints[117]", "Params.sketch1_radius3")
sketch1.setExpression("Constraints[118]", "Params.sketch1_length")
pad1 = body.newObject("PartDesign::Pad", "Pad")
pad1.Profile = sketch1
pad1.setExpression("Length", "Params.pad1_length")
pad1.Reversed = True

# Sketch on XZ plane
sketch2 = body.newObject("Sketcher::SketchObject", "Sketch001")
sketch2.AttachmentSupport = (doc.getObject("XZ_Plane"), [""])
sketch2.MapMode = "FlatFace"
sketch2.addGeometry([
    Part.LineSegment(Vector(322.5, 0, 0), Vector(282.5, 0, 0)),  # 0
    Part.LineSegment(Vector(282.5, 0, 0), Vector(282.5, -10, 0)),  # 1
    Part.LineSegment(Vector(282.5, -10, 0), Vector(322.5, -10, 0)),  # 2
    Part.LineSegment(Vector(322.5, -10, 0), Vector(322.5, 0, 0)),  # 3
    Part.LineSegment(Vector(-282.5, -10, 0), Vector(-282.5, 0, 0)),  # 4
    Part.LineSegment(Vector(-282.5, 0, 0), Vector(-322.5, 0, 0)),  # 5
    Part.LineSegment(Vector(-322.5, 0, 0), Vector(-322.5, -10, 0)),  # 6
    Part.LineSegment(Vector(-322.5, -10, 0), Vector(-282.5, -10, 0)),  # 7
], False)
sketch2.addConstraint([
    Sketcher.Constraint("Coincident", 0, 2, 1, 1),
    Sketcher.Constraint("Coincident", 1, 2, 2, 1),
    Sketcher.Constraint("Coincident", 2, 2, 3, 1),
    Sketcher.Constraint("Coincident", 3, 2, 0, 1),
    Sketcher.Constraint("Coincident", 4, 2, 5, 1),
    Sketcher.Constraint("Coincident", 5, 2, 6, 1),
    Sketcher.Constraint("Coincident", 6, 2, 7, 1),
    Sketcher.Constraint("Coincident", 7, 2, 4, 1),
    Sketcher.Constraint("Horizontal", 0),
    Sketcher.Constraint("Vertical", 1),
    Sketcher.Constraint("Horizontal", 2),
    Sketcher.Constraint("Vertical", 3),
    Sketcher.Constraint("Vertical", 4),
    Sketcher.Constraint("Horizontal", 5),
    Sketcher.Constraint("Vertical", 6),
    Sketcher.Constraint("Horizontal", 7),
    Sketcher.Constraint("Symmetric", 0, 2, 4, 2, -1, 1),
    Sketcher.Constraint("Symmetric", 3, 2, 5, 2, -2),
    Sketcher.Constraint("Horizontal", 2, 2, 6, 2),
    Sketcher.Constraint("DistanceX", 0, 2, 0, 1, 40.0),
    Sketcher.Constraint("DistanceY", 1, 2, 1, 1, 10.0),
    Sketcher.Constraint("DistanceX", 4, 2, 0, 2, 565.0),
])
sketch2.setExpression("Constraints[19]", "Params.sketch2_width")
sketch2.setExpression("Constraints[20]", "Params.sketch2_height")
pad2 = body.newObject("PartDesign::Pad", "Pad001")
pad2.Profile = sketch2
pad2.setExpression("Length", "Params.pad2_length")
pad2.Reversed = True
doc.recompute()

fillet = body.newObject("PartDesign::Fillet", "Fillet")
fillet.Base = (pad2, edges_at(pad2, [
    (-231.117, 202.833, -5),
    (-259.862, 231.577, -5),
    (-202.833, 231.117, -5),
    (-231.577, 259.862, -5),
    (231.577, 259.862, -5),
    (259.862, 231.577, -5),
    (202.833, 231.117, -5),
    (231.117, 202.833, -5),
]))
fillet.setExpression("Radius", "Params.fillet_radius")

# Sketch on XZ plane
sketch3 = body.newObject("Sketcher::SketchObject", "Sketch002")
sketch3.AttachmentSupport = (doc.getObject("XZ_Plane"), [""])
sketch3.MapMode = "FlatFace"
sketch3.addGeometry([
    Part.Circle(Vector(-315, -5, 0), Vector(0, 0, 1), 2.6),
    Part.Circle(Vector(315, -5, 0), Vector(0, 0, 1), 2.6),
], False)
sketch3.addConstraint([
    Sketcher.Constraint("Equal", 0, 1),
    Sketcher.Constraint("Symmetric", 0, 3, 1, 3, -2),
    Sketcher.Constraint("Diameter", 0, 5.2),
    Sketcher.Constraint("DistanceX", 0, 3, -1, 1, 315.0),
    Sketcher.Constraint("DistanceY", 0, 3, -1, 1, 5.0),
])
sketch3.setExpression("Constraints[2]", "Params.sketch3_diameter")
doc.recompute()
hole = body.newObject("PartDesign::Hole", "Hole")
hole.Profile = sketch3
hole.ThreadType = "None"
hole.setExpression("Diameter", "Params.hole_diameter")
hole.DepthType = "ThroughAll"

doc.recompute()
